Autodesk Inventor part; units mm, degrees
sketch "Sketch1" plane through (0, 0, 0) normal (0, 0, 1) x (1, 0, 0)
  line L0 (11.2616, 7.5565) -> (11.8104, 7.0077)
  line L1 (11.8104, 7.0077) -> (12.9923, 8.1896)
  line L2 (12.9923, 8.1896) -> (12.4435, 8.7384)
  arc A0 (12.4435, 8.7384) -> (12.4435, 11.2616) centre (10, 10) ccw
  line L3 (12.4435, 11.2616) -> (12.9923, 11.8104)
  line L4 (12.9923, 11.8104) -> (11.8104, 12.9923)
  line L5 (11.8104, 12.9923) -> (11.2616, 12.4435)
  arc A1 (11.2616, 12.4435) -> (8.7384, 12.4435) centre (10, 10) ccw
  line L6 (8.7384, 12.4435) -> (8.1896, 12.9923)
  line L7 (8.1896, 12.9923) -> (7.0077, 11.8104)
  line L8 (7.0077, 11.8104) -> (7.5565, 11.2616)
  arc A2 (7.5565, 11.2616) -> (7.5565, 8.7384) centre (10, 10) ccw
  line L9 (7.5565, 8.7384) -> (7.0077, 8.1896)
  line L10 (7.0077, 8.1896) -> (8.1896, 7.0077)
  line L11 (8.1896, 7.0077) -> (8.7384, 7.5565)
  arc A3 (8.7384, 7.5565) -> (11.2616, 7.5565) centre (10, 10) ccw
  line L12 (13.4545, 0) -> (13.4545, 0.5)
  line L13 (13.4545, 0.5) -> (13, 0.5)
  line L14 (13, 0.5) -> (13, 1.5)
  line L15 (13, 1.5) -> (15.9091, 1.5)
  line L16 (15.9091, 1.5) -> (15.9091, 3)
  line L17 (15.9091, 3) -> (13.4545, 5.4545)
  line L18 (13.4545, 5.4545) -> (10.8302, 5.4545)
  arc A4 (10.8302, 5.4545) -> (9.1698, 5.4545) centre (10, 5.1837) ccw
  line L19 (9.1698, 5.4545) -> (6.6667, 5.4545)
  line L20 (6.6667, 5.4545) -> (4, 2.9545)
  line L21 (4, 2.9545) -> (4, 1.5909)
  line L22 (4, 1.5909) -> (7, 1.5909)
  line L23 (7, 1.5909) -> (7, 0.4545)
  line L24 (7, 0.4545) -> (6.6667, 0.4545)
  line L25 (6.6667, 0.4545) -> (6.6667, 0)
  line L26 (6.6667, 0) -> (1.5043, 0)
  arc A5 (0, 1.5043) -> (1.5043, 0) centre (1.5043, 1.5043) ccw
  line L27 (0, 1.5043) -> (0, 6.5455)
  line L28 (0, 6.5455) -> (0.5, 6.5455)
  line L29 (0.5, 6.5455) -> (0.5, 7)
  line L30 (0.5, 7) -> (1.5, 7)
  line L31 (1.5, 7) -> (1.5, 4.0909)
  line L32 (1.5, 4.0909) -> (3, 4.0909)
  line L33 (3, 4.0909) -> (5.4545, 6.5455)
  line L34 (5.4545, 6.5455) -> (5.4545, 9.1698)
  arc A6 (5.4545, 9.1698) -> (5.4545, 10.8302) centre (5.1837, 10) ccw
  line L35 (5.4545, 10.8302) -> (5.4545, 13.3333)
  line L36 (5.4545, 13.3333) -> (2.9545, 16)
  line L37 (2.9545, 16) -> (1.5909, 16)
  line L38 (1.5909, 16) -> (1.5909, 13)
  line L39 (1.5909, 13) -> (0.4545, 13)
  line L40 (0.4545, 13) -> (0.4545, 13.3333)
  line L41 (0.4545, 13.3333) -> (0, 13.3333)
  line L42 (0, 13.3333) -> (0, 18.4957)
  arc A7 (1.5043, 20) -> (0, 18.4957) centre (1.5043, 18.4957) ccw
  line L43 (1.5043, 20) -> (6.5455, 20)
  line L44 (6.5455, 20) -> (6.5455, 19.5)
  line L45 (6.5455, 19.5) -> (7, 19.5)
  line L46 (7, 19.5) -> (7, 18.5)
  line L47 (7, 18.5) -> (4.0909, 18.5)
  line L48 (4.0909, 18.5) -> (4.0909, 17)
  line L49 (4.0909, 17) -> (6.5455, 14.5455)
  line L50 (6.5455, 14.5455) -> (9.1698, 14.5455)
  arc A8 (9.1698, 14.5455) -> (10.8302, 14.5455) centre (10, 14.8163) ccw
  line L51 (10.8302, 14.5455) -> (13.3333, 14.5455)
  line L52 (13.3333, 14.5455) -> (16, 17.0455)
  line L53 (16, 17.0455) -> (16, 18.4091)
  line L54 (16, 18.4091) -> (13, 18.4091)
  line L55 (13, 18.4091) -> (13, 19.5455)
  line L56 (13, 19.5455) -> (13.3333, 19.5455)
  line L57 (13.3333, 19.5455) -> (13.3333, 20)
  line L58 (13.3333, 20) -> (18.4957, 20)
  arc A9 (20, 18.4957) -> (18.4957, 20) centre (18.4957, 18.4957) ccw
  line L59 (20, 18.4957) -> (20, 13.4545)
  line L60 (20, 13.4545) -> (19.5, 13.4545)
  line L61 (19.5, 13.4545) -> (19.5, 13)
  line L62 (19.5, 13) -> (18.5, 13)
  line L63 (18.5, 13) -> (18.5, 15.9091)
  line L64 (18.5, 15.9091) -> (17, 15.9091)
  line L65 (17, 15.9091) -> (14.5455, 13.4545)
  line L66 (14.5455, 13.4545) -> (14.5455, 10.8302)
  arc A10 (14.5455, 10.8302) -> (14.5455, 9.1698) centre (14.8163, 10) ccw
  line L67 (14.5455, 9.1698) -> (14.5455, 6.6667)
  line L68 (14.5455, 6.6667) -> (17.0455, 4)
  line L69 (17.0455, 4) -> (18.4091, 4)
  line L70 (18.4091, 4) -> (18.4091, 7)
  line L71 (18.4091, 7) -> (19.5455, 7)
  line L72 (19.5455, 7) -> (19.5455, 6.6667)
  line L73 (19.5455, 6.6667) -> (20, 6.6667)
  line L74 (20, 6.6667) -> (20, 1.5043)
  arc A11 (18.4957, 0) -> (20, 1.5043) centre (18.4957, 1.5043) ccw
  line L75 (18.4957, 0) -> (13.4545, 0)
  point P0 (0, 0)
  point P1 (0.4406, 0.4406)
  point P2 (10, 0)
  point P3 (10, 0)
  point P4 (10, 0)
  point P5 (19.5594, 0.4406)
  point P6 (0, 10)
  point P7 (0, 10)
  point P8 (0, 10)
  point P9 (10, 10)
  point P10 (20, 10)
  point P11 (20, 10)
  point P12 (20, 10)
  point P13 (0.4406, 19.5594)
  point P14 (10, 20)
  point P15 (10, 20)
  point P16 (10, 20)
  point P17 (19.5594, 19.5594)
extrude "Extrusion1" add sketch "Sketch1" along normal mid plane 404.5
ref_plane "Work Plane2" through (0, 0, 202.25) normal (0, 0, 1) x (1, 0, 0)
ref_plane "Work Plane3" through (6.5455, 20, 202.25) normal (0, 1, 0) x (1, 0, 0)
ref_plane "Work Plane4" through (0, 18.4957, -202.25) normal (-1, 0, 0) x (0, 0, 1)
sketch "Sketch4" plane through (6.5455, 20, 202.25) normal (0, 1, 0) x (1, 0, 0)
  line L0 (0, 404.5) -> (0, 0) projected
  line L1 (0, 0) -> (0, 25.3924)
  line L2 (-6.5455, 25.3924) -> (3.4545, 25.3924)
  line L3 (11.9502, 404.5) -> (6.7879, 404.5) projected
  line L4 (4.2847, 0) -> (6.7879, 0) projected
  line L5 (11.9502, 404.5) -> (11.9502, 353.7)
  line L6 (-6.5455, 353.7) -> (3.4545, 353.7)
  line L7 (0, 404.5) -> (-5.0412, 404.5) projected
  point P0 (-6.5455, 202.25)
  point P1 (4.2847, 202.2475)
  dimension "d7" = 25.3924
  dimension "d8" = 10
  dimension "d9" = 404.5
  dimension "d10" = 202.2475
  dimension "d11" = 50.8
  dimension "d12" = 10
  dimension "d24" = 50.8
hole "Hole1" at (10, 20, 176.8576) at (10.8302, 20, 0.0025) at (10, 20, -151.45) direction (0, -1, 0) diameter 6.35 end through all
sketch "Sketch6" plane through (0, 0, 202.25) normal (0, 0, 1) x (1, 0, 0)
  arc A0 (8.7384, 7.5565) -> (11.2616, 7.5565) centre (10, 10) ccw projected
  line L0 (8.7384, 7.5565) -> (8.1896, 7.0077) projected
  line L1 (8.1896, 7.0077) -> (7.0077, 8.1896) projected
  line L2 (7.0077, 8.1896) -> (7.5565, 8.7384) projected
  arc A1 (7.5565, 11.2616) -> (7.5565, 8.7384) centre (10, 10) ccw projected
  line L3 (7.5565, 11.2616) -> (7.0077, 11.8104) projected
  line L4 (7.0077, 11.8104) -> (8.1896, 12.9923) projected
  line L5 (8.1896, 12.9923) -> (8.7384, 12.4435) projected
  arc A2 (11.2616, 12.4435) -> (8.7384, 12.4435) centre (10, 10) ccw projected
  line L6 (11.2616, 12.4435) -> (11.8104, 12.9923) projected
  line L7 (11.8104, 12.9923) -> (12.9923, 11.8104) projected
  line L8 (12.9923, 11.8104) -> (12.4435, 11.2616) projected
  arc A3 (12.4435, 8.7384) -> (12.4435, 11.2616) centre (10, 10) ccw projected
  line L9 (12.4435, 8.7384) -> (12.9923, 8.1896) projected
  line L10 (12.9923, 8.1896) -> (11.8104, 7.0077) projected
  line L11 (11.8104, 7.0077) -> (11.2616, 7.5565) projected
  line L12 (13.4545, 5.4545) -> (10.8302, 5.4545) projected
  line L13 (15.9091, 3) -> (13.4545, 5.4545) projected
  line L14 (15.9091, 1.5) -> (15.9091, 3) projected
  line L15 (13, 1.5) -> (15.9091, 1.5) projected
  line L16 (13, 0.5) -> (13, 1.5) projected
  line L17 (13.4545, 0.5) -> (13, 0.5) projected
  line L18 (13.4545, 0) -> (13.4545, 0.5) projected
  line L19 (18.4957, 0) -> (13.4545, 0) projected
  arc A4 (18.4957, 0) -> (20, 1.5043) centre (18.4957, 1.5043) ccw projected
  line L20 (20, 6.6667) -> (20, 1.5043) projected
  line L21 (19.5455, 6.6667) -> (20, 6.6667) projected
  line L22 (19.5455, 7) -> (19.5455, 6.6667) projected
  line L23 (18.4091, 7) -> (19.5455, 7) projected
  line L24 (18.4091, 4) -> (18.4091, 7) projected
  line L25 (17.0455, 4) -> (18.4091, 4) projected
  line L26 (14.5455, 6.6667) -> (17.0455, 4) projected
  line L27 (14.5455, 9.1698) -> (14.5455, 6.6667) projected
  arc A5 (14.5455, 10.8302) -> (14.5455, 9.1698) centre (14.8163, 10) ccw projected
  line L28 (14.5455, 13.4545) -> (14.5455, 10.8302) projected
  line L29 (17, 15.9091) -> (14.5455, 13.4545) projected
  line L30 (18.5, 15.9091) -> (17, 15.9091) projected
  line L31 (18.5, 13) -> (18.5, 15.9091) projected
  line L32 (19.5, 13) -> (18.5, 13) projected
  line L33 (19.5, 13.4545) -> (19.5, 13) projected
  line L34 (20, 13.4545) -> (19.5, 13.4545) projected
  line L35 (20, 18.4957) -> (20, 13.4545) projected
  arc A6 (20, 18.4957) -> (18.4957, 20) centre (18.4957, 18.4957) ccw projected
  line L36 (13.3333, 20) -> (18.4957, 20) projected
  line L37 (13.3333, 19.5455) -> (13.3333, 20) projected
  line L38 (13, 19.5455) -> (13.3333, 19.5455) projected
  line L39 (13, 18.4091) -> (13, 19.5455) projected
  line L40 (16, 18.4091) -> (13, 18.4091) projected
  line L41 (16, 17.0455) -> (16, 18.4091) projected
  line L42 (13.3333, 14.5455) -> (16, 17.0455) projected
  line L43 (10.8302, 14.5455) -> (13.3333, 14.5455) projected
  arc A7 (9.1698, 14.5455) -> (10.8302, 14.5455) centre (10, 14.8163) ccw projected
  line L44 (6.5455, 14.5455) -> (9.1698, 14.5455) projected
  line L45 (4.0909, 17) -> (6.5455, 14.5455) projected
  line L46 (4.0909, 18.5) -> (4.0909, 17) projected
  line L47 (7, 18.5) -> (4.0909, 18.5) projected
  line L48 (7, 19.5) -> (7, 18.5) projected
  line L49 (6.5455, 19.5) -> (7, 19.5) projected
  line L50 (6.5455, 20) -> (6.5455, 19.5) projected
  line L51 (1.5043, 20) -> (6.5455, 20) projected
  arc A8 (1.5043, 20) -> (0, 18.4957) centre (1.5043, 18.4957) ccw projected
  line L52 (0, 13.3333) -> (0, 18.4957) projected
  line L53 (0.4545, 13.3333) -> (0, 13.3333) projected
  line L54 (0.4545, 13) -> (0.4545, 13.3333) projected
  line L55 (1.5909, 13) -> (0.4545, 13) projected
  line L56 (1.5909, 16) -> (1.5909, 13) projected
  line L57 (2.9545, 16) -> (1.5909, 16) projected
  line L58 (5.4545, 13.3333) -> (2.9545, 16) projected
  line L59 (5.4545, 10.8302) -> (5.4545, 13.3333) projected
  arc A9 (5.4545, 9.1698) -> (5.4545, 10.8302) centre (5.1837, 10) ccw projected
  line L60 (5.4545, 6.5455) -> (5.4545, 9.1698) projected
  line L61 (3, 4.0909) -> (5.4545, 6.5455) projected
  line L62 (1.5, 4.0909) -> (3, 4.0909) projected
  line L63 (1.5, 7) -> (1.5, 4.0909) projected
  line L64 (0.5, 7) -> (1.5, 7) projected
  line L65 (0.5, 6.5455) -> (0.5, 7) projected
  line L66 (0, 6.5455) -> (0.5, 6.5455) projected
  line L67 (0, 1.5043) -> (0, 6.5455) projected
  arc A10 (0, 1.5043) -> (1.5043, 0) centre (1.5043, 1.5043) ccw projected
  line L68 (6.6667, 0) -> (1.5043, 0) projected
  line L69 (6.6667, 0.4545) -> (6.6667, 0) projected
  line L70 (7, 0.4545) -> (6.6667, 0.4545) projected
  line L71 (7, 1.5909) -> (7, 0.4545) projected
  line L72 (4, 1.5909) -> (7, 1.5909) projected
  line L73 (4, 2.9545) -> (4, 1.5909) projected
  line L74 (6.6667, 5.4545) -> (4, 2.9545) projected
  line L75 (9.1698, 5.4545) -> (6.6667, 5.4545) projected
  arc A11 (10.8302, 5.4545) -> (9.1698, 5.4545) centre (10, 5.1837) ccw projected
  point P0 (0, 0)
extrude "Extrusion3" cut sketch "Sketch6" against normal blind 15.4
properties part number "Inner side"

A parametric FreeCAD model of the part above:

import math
import FreeCAD as App
import Part
import Sketcher

doc = App.newDocument("Part")
body = doc.addObject("PartDesign::Body", "Body")

# Sketch on XY plane
sketch1 = doc.addObject("Sketcher::SketchObject", "Sketch")
body.addObject(sketch1)
sketch1.AttachmentSupport = (doc.XY_Plane, [""])
sketch1.MapMode = "FlatFace"
sketch1.addGeometry([
    Part.LineSegment(App.Vector(13.45, 0.5, 0), App.Vector(13.45, 0, 0)),  # 0
    Part.LineSegment(App.Vector(13.45, 0, 0), App.Vector(18.5, 0, 0)),  # 1
    Part.ArcOfCircle(Part.Circle(App.Vector(18.5, 1.5, 0), App.Vector(0, 0, 1), 1.5), math.radians(-90), math.radians(0)),  # 2
    Part.LineSegment(App.Vector(20, 1.5, 0), App.Vector(20, 6.67, 0)),  # 3
    Part.LineSegment(App.Vector(20, 6.67, 0), App.Vector(19.55, 6.67, 0)),  # 4
    Part.LineSegment(App.Vector(19.55, 6.67, 0), App.Vector(19.55, 7, 0)),  # 5
    Part.LineSegment(App.Vector(19.55, 7, 0), App.Vector(18.41, 7, 0)),  # 6
    Part.LineSegment(App.Vector(18.41, 7, 0), App.Vector(18.41, 4, 0)),  # 7
    Part.LineSegment(App.Vector(18.41, 4, 0), App.Vector(17.05, 4, 0)),  # 8
    Part.LineSegment(App.Vector(17.05, 4, 0), App.Vector(14.55, 6.67, 0)),  # 9
    Part.LineSegment(App.Vector(14.55, 6.67, 0), App.Vector(14.55, 9.17, 0)),  # 10
    Part.ArcOfCircle(Part.Circle(App.Vector(14.82, 10, 0), App.Vector(0, 0, 1), 0.87), math.radians(108), math.radians(252)),  # 11
    Part.LineSegment(App.Vector(14.55, 10.83, 0), App.Vector(14.55, 13.45, 0)),  # 12
    Part.LineSegment(App.Vector(14.55, 13.45, 0), App.Vector(17, 15.91, 0)),  # 13
    Part.LineSegment(App.Vector(17, 15.91, 0), App.Vector(18.5, 15.91, 0)),  # 14
    Part.LineSegment(App.Vector(18.5, 15.91, 0), App.Vector(18.5, 13, 0)),  # 15
    Part.LineSegment(App.Vector(18.5, 13, 0), App.Vector(19.5, 13, 0)),  # 16
    Part.LineSegment(App.Vector(19.5, 13, 0), App.Vector(19.5, 13.45, 0)),  # 17
    Part.LineSegment(App.Vector(19.5, 13.45, 0), App.Vector(20, 13.45, 0)),  # 18
    Part.LineSegment(App.Vector(20, 13.45, 0), App.Vector(20, 18.5, 0)),  # 19
    Part.ArcOfCircle(Part.Circle(App.Vector(18.5, 18.5, 0), App.Vector(0, 0, 1), 1.5), math.radians(0), math.radians(90)),  # 20
    Part.LineSegment(App.Vector(18.5, 20, 0), App.Vector(13.33, 20, 0)),  # 21
    Part.LineSegment(App.Vector(13.33, 20, 0), App.Vector(13.33, 19.55, 0)),  # 22
    Part.LineSegment(App.Vector(13.33, 19.55, 0), App.Vector(13, 19.55, 0)),  # 23
    Part.LineSegment(App.Vector(13, 19.55, 0), App.Vector(13, 18.41, 0)),  # 24
    Part.LineSegment(App.Vector(13, 18.41, 0), App.Vector(16, 18.41, 0)),  # 25
    Part.LineSegment(App.Vector(16, 18.41, 0), App.Vector(16, 17.05, 0)),  # 26
    Part.LineSegment(App.Vector(16, 17.05, 0), App.Vector(13.33, 14.55, 0)),  # 27
    Part.LineSegment(App.Vector(13.33, 14.55, 0), App.Vector(10.83, 14.55, 0)),  # 28
    Part.ArcOfCircle(Part.Circle(App.Vector(10, 14.82, 0), App.Vector(0, 0, 1), 0.87), math.radians(-162), math.radians(-18)),  # 29
    Part.LineSegment(App.Vector(9.17, 14.55, 0), App.Vector(6.55, 14.55, 0)),  # 30
    Part.LineSegment(App.Vector(6.55, 14.55, 0), App.Vector(4.09, 17, 0)),  # 31
    Part.LineSegment(App.Vector(4.09, 17, 0), App.Vector(4.09, 18.5, 0)),  # 32
    Part.LineSegment(App.Vector(4.09, 18.5, 0), App.Vector(7, 18.5, 0)),  # 33
    Part.LineSegment(App.Vector(7, 18.5, 0), App.Vector(7, 19.5, 0)),  # 34
    Part.LineSegment(App.Vector(7, 19.5, 0), App.Vector(6.55, 19.5, 0)),  # 35
    Part.LineSegment(App.Vector(6.55, 19.5, 0), App.Vector(6.55, 20, 0)),  # 36
    Part.LineSegment(App.Vector(6.55, 20, 0), App.Vector(1.5, 20, 0)),  # 37
    Part.ArcOfCircle(Part.Circle(App.Vector(1.5, 18.5, 0), App.Vector(0, 0, 1), 1.5), math.radians(90), math.radians(180)),  # 38
    Part.LineSegment(App.Vector(0, 18.5, 0), App.Vector(0, 13.33, 0)),  # 39
    Part.LineSegment(App.Vector(0, 13.33, 0), App.Vector(0.45, 13.33, 0)),  # 40
    Part.LineSegment(App.Vector(0.45, 13.33, 0), App.Vector(0.45, 13, 0)),  # 41
    Part.LineSegment(App.Vector(0.45, 13, 0), App.Vector(1.59, 13, 0)),  # 42
    Part.LineSegment(App.Vector(1.59, 13, 0), App.Vector(1.59, 16, 0)),  # 43
    Part.LineSegment(App.Vector(1.59, 16, 0), App.Vector(2.95, 16, 0)),  # 44
    Part.LineSegment(App.Vector(2.95, 16, 0), App.Vector(5.45, 13.33, 0)),  # 45
    Part.LineSegment(App.Vector(5.45, 13.33, 0), App.Vector(5.45, 10.83, 0)),  # 46
    Part.ArcOfCircle(Part.Circle(App.Vector(5.18, 10, 0), App.Vector(0, 0, 1), 0.87), math.radians(-72), math.radians(72)),  # 47
    Part.LineSegment(App.Vector(5.45, 9.17, 0), App.Vector(5.45, 6.55, 0)),  # 48
    Part.LineSegment(App.Vector(5.45, 6.55, 0), App.Vector(3, 4.09, 0)),  # 49
    Part.LineSegment(App.Vector(3, 4.09, 0), App.Vector(1.5, 4.09, 0)),  # 50
    Part.LineSegment(App.Vector(1.5, 4.09, 0), App.Vector(1.5, 7, 0)),  # 51
    Part.LineSegment(App.Vector(1.5, 7, 0), App.Vector(0.5, 7, 0)),  # 52
    Part.LineSegment(App.Vector(0.5, 7, 0), App.Vector(0.5, 6.55, 0)),  # 53
    Part.LineSegment(App.Vector(0.5, 6.55, 0), App.Vector(0, 6.55, 0)),  # 54
    Part.LineSegment(App.Vector(0, 6.55, 0), App.Vector(0, 1.5, 0)),  # 55
    Part.ArcOfCircle(Part.Circle(App.Vector(1.5, 1.5, 0), App.Vector(0, 0, 1), 1.5), math.radians(180), math.radians(270)),  # 56
    Part.LineSegment(App.Vector(1.5, 0, 0), App.Vector(6.67, 0, 0)),  # 57
    Part.LineSegment(App.Vector(6.67, 0, 0), App.Vector(6.67, 0.45, 0)),  # 58
    Part.LineSegment(App.Vector(6.67, 0.45, 0), App.Vector(7, 0.45, 0)),  # 59
    Part.LineSegment(App.Vector(7, 0.45, 0), App.Vector(7, 1.59, 0)),  # 60
    Part.LineSegment(App.Vector(7, 1.59, 0), App.Vector(4, 1.59, 0)),  # 61
    Part.LineSegment(App.Vector(4, 1.59, 0), App.Vector(4, 2.95, 0)),  # 62
    Part.LineSegment(App.Vector(4, 2.95, 0), App.Vector(6.67, 5.45, 0)),  # 63
    Part.LineSegment(App.Vector(6.67, 5.45, 0), App.Vector(9.17, 5.45, 0)),  # 64
    Part.ArcOfCircle(Part.Circle(App.Vector(10, 5.18, 0), App.Vector(0, 0, 1), 0.87), math.radians(18), math.radians(162)),  # 65
    Part.LineSegment(App.Vector(10.83, 5.45, 0), App.Vector(13.45, 5.45, 0)),  # 66
    Part.LineSegment(App.Vector(13.45, 5.45, 0), App.Vector(15.91, 3, 0)),  # 67
    Part.LineSegment(App.Vector(15.91, 3, 0), App.Vector(15.91, 1.5, 0)),  # 68
    Part.LineSegment(App.Vector(15.91, 1.5, 0), App.Vector(13, 1.5, 0)),  # 69
    Part.LineSegment(App.Vector(13, 1.5, 0), App.Vector(13, 0.5, 0)),  # 70
    Part.LineSegment(App.Vector(13, 0.5, 0), App.Vector(13.45, 0.5, 0)),  # 71
    Part.LineSegment(App.Vector(11.81, 7.01, 0), App.Vector(11.26, 7.56, 0)),  # 72
    Part.ArcOfCircle(Part.Circle(App.Vector(10, 10, 0), App.Vector(0, 0, 1), 2.75), math.radians(-117), math.radians(-63)),  # 73
    Part.LineSegment(App.Vector(8.74, 7.56, 0), App.Vector(8.19, 7.01, 0)),  # 74
    Part.LineSegment(App.Vector(8.19, 7.01, 0), App.Vector(7.01, 8.19, 0)),  # 75
    Part.LineSegment(App.Vector(7.01, 8.19, 0), App.Vector(7.56, 8.74, 0)),  # 76
    Part.ArcOfCircle(Part.Circle(App.Vector(10, 10, 0), App.Vector(0, 0, 1), 2.75), math.radians(153), math.radians(207)),  # 77
    Part.LineSegment(App.Vector(7.56, 11.26, 0), App.Vector(7.01, 11.81, 0)),  # 78
    Part.LineSegment(App.Vector(7.01, 11.81, 0), App.Vector(8.19, 12.99, 0)),  # 79
    Part.LineSegment(App.Vector(8.19, 12.99, 0), App.Vector(8.74, 12.44, 0)),  # 80
    Part.ArcOfCircle(Part.Circle(App.Vector(10, 10, 0), App.Vector(0, 0, 1), 2.75), math.radians(63), math.radians(117)),  # 81
    Part.LineSegment(App.Vector(11.26, 12.44, 0), App.Vector(11.81, 12.99, 0)),  # 82
    Part.LineSegment(App.Vector(11.81, 12.99, 0), App.Vector(12.99, 11.81, 0)),  # 83
    Part.LineSegment(App.Vector(12.99, 11.81, 0), App.Vector(12.44, 11.26, 0)),  # 84
    Part.ArcOfCircle(Part.Circle(App.Vector(10, 10, 0), App.Vector(0, 0, 1), 2.75), math.radians(-27), math.radians(27)),  # 85
    Part.LineSegment(App.Vector(12.44, 8.74, 0), App.Vector(12.99, 8.19, 0)),  # 86
    Part.LineSegment(App.Vector(12.99, 8.19, 0), App.Vector(11.81, 7.01, 0)),  # 87
], False)
sketch1.addConstraint([
    Sketcher.Constraint("Coincident", 0, 2, 1, 1),
    Sketcher.Constraint("Tangent", 1, 2, 2, 1),
    Sketcher.Constraint("Tangent", 2, 2, 3, 1),
    Sketcher.Constraint("Coincident", 3, 2, 4, 1),
    Sketcher.Constraint("Coincident", 4, 2, 5, 1),
    Sketcher.Constraint("Coincident", 5, 2, 6, 1),
    Sketcher.Constraint("Coincident", 6, 2, 7, 1),
    Sketcher.Constraint("Coincident", 7, 2, 8, 1),
    Sketcher.Constraint("Coincident", 8, 2, 9, 1),
    Sketcher.Constraint("Coincident", 9, 2, 10, 1),
    Sketcher.Constraint("Coincident", 10, 2, 11, 2),
    Sketcher.Constraint("Coincident", 11, 1, 12, 1),
    Sketcher.Constraint("Coincident", 12, 2, 13, 1),
    Sketcher.Constraint("Coincident", 13, 2, 14, 1),
    Sketcher.Constraint("Coincident", 14, 2, 15, 1),
    Sketcher.Constraint("Coincident", 15, 2, 16, 1),
    Sketcher.Constraint("Coincident", 16, 2, 17, 1),
    Sketcher.Constraint("Coincident", 17, 2, 18, 1),
    Sketcher.Constraint("Coincident", 18, 2, 19, 1),
    Sketcher.Constraint("Tangent", 19, 2, 20, 1),
    Sketcher.Constraint("Tangent", 20, 2, 21, 1),
    Sketcher.Constraint("Coincident", 21, 2, 22, 1),
    Sketcher.Constraint("Coincident", 22, 2, 23, 1),
    Sketcher.Constraint("Coincident", 23, 2, 24, 1),
    Sketcher.Constraint("Coincident", 24, 2, 25, 1),
    Sketcher.Constraint("Coincident", 25, 2, 26, 1),
    Sketcher.Constraint("Coincident", 26, 2, 27, 1),
    Sketcher.Constraint("Coincident", 27, 2, 28, 1),
    Sketcher.Constraint("Coincident", 28, 2, 29, 2),
    Sketcher.Constraint("Coincident", 29, 1, 30, 1),
    Sketcher.Constraint("Coincident", 30, 2, 31, 1),
    Sketcher.Constraint("Coincident", 31, 2, 32, 1),
    Sketcher.Constraint("Coincident", 32, 2, 33, 1),
    Sketcher.Constraint("Coincident", 33, 2, 34, 1),
    Sketcher.Constraint("Coincident", 34, 2, 35, 1),
    Sketcher.Constraint("Coincident", 35, 2, 36, 1),
    Sketcher.Constraint("Coincident", 36, 2, 37, 1),
    Sketcher.Constraint("Tangent", 37, 2, 38, 1),
    Sketcher.Constraint("Tangent", 38, 2, 39, 1),
    Sketcher.Constraint("Coincident", 39, 2, 40, 1),
    Sketcher.Constraint("Coincident", 40, 2, 41, 1),
    Sketcher.Constraint("Coincident", 41, 2, 42, 1),
    Sketcher.Constraint("Coincident", 42, 2, 43, 1),
    Sketcher.Constraint("Coincident", 43, 2, 44, 1),
    Sketcher.Constraint("Coincident", 44, 2, 45, 1),
    Sketcher.Constraint("Coincident", 45, 2, 46, 1),
    Sketcher.Constraint("Coincident", 46, 2, 47, 2),
    Sketcher.Constraint("Coincident", 47, 1, 48, 1),
    Sketcher.Constraint("Coincident", 48, 2, 49, 1),
    Sketcher.Constraint("Coincident", 49, 2, 50, 1),
    Sketcher.Constraint("Coincident", 50, 2, 51, 1),
    Sketcher.Constraint("Coincident", 51, 2, 52, 1),
    Sketcher.Constraint("Coincident", 52, 2, 53, 1),
    Sketcher.Constraint("Coincident", 53, 2, 54, 1),
    Sketcher.Constraint("Coincident", 54, 2, 55, 1),
    Sketcher.Constraint("Tangent", 55, 2, 56, 1),
    Sketcher.Constraint("Tangent", 56, 2, 57, 1),
    Sketcher.Constraint("Coincident", 57, 2, 58, 1),
    Sketcher.Constraint("Coincident", 58, 2, 59, 1),
    Sketcher.Constraint("Coincident", 59, 2, 60, 1),
    Sketcher.Constraint("Coincident", 60, 2, 61, 1),
    Sketcher.Constraint("Coincident", 61, 2, 62, 1),
    Sketcher.Constraint("Coincident", 62, 2, 63, 1),
    Sketcher.Constraint("Coincident", 63, 2, 64, 1),
    Sketcher.Constraint("Coincident", 64, 2, 65, 2),
    Sketcher.Constraint("Coincident", 65, 1, 66, 1),
    Sketcher.Constraint("Coincident", 66, 2, 67, 1),
    Sketcher.Constraint("Coincident", 67, 2, 68, 1),
    Sketcher.Constraint("Coincident", 68, 2, 69, 1),
    Sketcher.Constraint("Coincident", 69, 2, 70, 1),
    Sketcher.Constraint("Coincident", 70, 2, 71, 1),
    Sketcher.Constraint("Coincident", 71, 2, 0, 1),
    Sketcher.Constraint("Coincident", 72, 2, 73, 2),
    Sketcher.Constraint("Coincident", 73, 1, 74, 1),
    Sketcher.Constraint("Coincident", 74, 2, 75, 1),
    Sketcher.Constraint("Coincident", 75, 2, 76, 1),
    Sketcher.Constraint("Coincident", 76, 2, 77, 2),
    Sketcher.Constraint("Coincident", 77, 1, 78, 1),
    Sketcher.Constraint("Coincident", 78, 2, 79, 1),
    Sketcher.Constraint("Coincident", 79, 2, 80, 1),
    Sketcher.Constraint("Coincident", 80, 2, 81, 2),
    Sketcher.Constraint("Coincident", 81, 1, 82, 1),
    Sketcher.Constraint("Coincident", 82, 2, 83, 1),
    Sketcher.Constraint("Coincident", 83, 2, 84, 1),
    Sketcher.Constraint("Coincident", 84, 2, 85, 2),
    Sketcher.Constraint("Coincident", 85, 1, 86, 1),
    Sketcher.Constraint("Coincident", 86, 2, 87, 1),
    Sketcher.Constraint("Coincident", 87, 2, 72, 1),
    Sketcher.Constraint("Vertical", 0),
    Sketcher.Constraint("Horizontal", 1),
    Sketcher.Constraint("Vertical", 3),
    Sketcher.Constraint("Horizontal", 4),
    Sketcher.Constraint("Vertical", 5),
    Sketcher.Constraint("Horizontal", 6),
    Sketcher.Constraint("Vertical", 7),
    Sketcher.Constraint("Horizontal", 8),
    Sketcher.Constraint("Vertical", 10),
    Sketcher.Constraint("Vertical", 12),
    Sketcher.Constraint("Horizontal", 14),
    Sketcher.Constraint("Vertical", 15),
    Sketcher.Constraint("Horizontal", 16),
    Sketcher.Constraint("Vertical", 17),
    Sketcher.Constraint("Horizontal", 18),
    Sketcher.Constraint("Vertical", 19),
    Sketcher.Constraint("Horizontal", 21),
    Sketcher.Constraint("Vertical", 22),
    Sketcher.Constraint("Horizontal", 23),
    Sketcher.Constraint("Vertical", 24),
    Sketcher.Constraint("Horizontal", 25),
    Sketcher.Constraint("Vertical", 26),
    Sketcher.Constraint("Horizontal", 28),
    Sketcher.Constraint("Horizontal", 30),
    Sketcher.Constraint("Vertical", 32),
    Sketcher.Constraint("Horizontal", 33),
    Sketcher.Constraint("Vertical", 34),
    Sketcher.Constraint("Horizontal", 35),
    Sketcher.Constraint("Vertical", 36),
    Sketcher.Constraint("Horizontal", 37),
    Sketcher.Constraint("Vertical", 39),
    Sketcher.Constraint("Horizontal", 40),
    Sketcher.Constraint("Vertical", 41),
    Sketcher.Constraint("Horizontal", 42),
    Sketcher.Constraint("Vertical", 43),
    Sketcher.Constraint("Horizontal", 44),
    Sketcher.Constraint("Vertical", 46),
    Sketcher.Constraint("Vertical", 48),
    Sketcher.Constraint("Horizontal", 50),
    Sketcher.Constraint("Vertical", 51),
    Sketcher.Constraint("Horizontal", 52),
    Sketcher.Constraint("Vertical", 53),
    Sketcher.Constraint("Horizontal", 54),
    Sketcher.Constraint("Vertical", 55),
    Sketcher.Constraint("Horizontal", 57),
    Sketcher.Constraint("Vertical", 58),
    Sketcher.Constraint("Horizontal", 59),
    Sketcher.Constraint("Vertical", 60),
    Sketcher.Constraint("Horizontal", 61),
    Sketcher.Constraint("Vertical", 62),
    Sketcher.Constraint("Horizontal", 64),
    Sketcher.Constraint("Horizontal", 66),
    Sketcher.Constraint("Vertical", 68),
    Sketcher.Constraint("Horizontal", 69),
    Sketcher.Constraint("Vertical", 70),
    Sketcher.Constraint("Horizontal", 71),
    Sketcher.Constraint("Coincident", 77, 3, 73, 3),
    Sketcher.Constraint("Coincident", 81, 3, 73, 3),
    Sketcher.Constraint("Coincident", 85, 3, 73, 3),
    Sketcher.Constraint("Equal", 2, 20),
    Sketcher.Constraint("Equal", 11, 29),
    Sketcher.Constraint("Equal", 20, 38),
    Sketcher.Constraint("Equal", 29, 47),
    Sketcher.Constraint("Equal", 38, 56),
    Sketcher.Constraint("Equal", 47, 65),
    Sketcher.Constraint("Equal", 73, 77),
    Sketcher.Constraint("Equal", 77, 81),
    Sketcher.Constraint("Equal", 81, 85),
    Sketcher.Constraint("PointOnObject", 0, 2, -1),
    Sketcher.Constraint("PointOnObject", 38, 2, -2),
    Sketcher.Constraint("PointOnObject", 54, 2, -2),
    Sketcher.Constraint("PointOnObject", 56, 2, -1),
    Sketcher.Constraint("Perpendicular", 9, 27),
    Sketcher.Constraint("Perpendicular", 13, 31),
    Sketcher.Constraint("Perpendicular", 27, 45),
    Sketcher.Constraint("Perpendicular", 31, 49),
    Sketcher.Constraint("Perpendicular", 45, 63),
    Sketcher.Constraint("Perpendicular", 49, 67),
    Sketcher.Constraint("Parallel", 67, 72),
    Sketcher.Constraint("Perpendicular", 72, 74),
    Sketcher.Constraint("Perpendicular", 74, 75),
    Sketcher.Constraint("Perpendicular", 75, 76),
    Sketcher.Constraint("Perpendicular", 76, 78),
    Sketcher.Constraint("Perpendicular", 78, 79),
    Sketcher.Constraint("Perpendicular", 79, 80),
    Sketcher.Constraint("Perpendicular", 80, 82),
    Sketcher.Constraint("Perpendicular", 82, 83),
    Sketcher.Constraint("Perpendicular", 83, 84),
    Sketcher.Constraint("Perpendicular", 84, 86),
    Sketcher.Constraint("Perpendicular", 86, 87),
    Sketcher.Constraint("Horizontal", 20, 3, 38, 3),
    Sketcher.Constraint("Horizontal", 11, 3, 47, 3),
    Sketcher.Constraint("Horizontal", 47, 3, 73, 3),
    Sketcher.Constraint("Horizontal", 4, 2, 9, 2),
    Sketcher.Constraint("Horizontal", 12, 2, 17, 2),
    Sketcher.Constraint("Horizontal", 28, 2, 29, 1),
    Sketcher.Constraint("Horizontal", 16, 2, 41, 2),
    Sketcher.Constraint("Horizontal", 40, 2, 45, 2),
    Sketcher.Constraint("Horizontal", 11, 1, 46, 2),
    Sketcher.Constraint("Horizontal", 10, 2, 47, 1),
    Sketcher.Constraint("Horizontal", 6, 2, 51, 2),
    Sketcher.Constraint("Horizontal", 48, 2, 53, 2),
    Sketcher.Constraint("Horizontal", 64, 2, 65, 1),
    Sketcher.Constraint("Horizontal", 72, 2, 73, 1),
    Sketcher.Constraint("Horizontal", 80, 2, 81, 1),
    Sketcher.Constraint("Horizontal", 79, 2, 82, 2),
    Sketcher.Constraint("Horizontal", 78, 2, 83, 2),
    Sketcher.Constraint("Horizontal", 77, 1, 84, 2),
    Sketcher.Constraint("Horizontal", 76, 2, 85, 1),
    Sketcher.Constraint("Horizontal", 75, 2, 86, 2),
    Sketcher.Constraint("Vertical", 2, 3, 20, 3),
    Sketcher.Constraint("Vertical", 29, 3, 65, 3),
    Sketcher.Constraint("Vertical", 65, 3, 73, 3),
    Sketcher.Constraint("Vertical", 10, 2, 11, 1),
    Sketcher.Constraint("Vertical", 22, 2, 27, 2),
    Sketcher.Constraint("Vertical", 30, 2, 35, 2),
    Sketcher.Constraint("Vertical", 34, 2, 59, 2),
    Sketcher.Constraint("Vertical", 58, 2, 63, 2),
    Sketcher.Constraint("Vertical", 29, 1, 64, 2),
    Sketcher.Constraint("Vertical", 0, 2, 66, 2),
    Sketcher.Constraint("Vertical", 24, 2, 69, 2),
    Sketcher.Constraint("Vertical", 76, 2, 77, 1),
    Sketcher.Constraint("Vertical", 75, 2, 78, 2),
    Sketcher.Constraint("Vertical", 74, 2, 79, 2),
    Sketcher.Constraint("Equal", 4, 35),
    Sketcher.Constraint("Equal", 1, 37),
    Sketcher.Constraint("Equal", 35, 40),
    Sketcher.Constraint("Equal", 6, 42),
    Sketcher.Constraint("Equal", 8, 44),
    Sketcher.Constraint("Equal", 14, 50),
    Sketcher.Constraint("Equal", 16, 52),
    Sketcher.Constraint("Equal", 18, 54),
    Sketcher.Constraint("Equal", 21, 57),
    Sketcher.Constraint("Equal", 23, 59),
    Sketcher.Constraint("Equal", 25, 61),
    Sketcher.Constraint("Equal", 28, 64),
    Sketcher.Constraint("Equal", 33, 69),
    Sketcher.Constraint("Equal", 54, 0),
    Sketcher.Constraint("Equal", 57, 3),
    Sketcher.Constraint("Equal", 59, 5),
    Sketcher.Constraint("Equal", 61, 7),
    Sketcher.Constraint("Equal", 64, 10),
    Sketcher.Constraint("Equal", 66, 12),
    Sketcher.Constraint("Equal", 69, 15),
    Sketcher.Constraint("Equal", 71, 17),
    Sketcher.Constraint("Equal", 37, 19),
    Sketcher.Constraint("Equal", 17, 22),
    Sketcher.Constraint("Equal", 42, 24),
    Sketcher.Constraint("Equal", 44, 26),
    Sketcher.Constraint("Equal", 50, 32),
    Sketcher.Constraint("Equal", 52, 34),
    Sketcher.Constraint("Equal", 3, 39),
    Sketcher.Constraint("Equal", 7, 43),
    Sketcher.Constraint("Equal", 12, 48),
    Sketcher.Constraint("Equal", 53, 58),
    Sketcher.Constraint("Equal", 24, 60),
    Sketcher.Constraint("Equal", 26, 62),
    Sketcher.Constraint("Equal", 32, 68),
    Sketcher.Constraint("Equal", 74, 76),
    Sketcher.Constraint("DistanceX", 16, 1, 16, 2, 1.0),
    Sketcher.Constraint("DistanceX", 25, 1, 25, 2, 3.0),
    Sketcher.Constraint("Radius", 73, 2.75),
    Sketcher.Constraint("DistanceX", 14, 1, 14, 2, 1.5),
    Sketcher.Constraint("DistanceX", 18, 1, 18, 2, 0.5),
    Sketcher.Constraint("DistanceY", -1, 1, 11, 3, 10.0),
    Sketcher.Constraint("DistanceX", -1, 1, 29, 3, 10.0),
    Sketcher.Constraint("DistanceY", -1, 1, 5, 2, 7.0),
    Sketcher.Constraint("Radius", 2, 1.5043),
    Sketcher.Constraint("Radius", 11, 0.8732),
    Sketcher.Constraint("DistanceX", 28, 2, 28, 1, 2.503),
    Sketcher.Constraint("DistanceX", 33, 1, 33, 2, 2.909),
    Sketcher.Constraint("DistanceX", 1, 1, 1, 2, 5.0412),
    Sketcher.Constraint("DistanceX", 6, 2, 6, 1, 1.1364),
    Sketcher.Constraint("DistanceX", 8, 2, 8, 1, 1.3636),
    Sketcher.Constraint("DistanceX", 21, 2, 21, 1, 5.1624),
    Sketcher.Constraint("Distance", 72, 0.7761),
    Sketcher.Constraint("Distance", 75, 1.6715),
])
pad1 = doc.addObject("PartDesign::Pad", "Pad")
body.addObject(pad1)
pad1.Profile = sketch1
pad1.Length = 404.5
pad1.Midplane = True

# Sketch on XZ plane
sketch2 = doc.addObject("Sketcher::SketchObject", "Sketch001")
body.addObject(sketch2)
sketch2.AttachmentSupport = (doc.XZ_Plane, [""])
sketch2.MapMode = "FlatFace"
sketch2.AttachmentOffset = App.Placement(App.Vector(0, 0, -20), App.Rotation())
sketch2.addGeometry([
    Part.Circle(App.Vector(10, 176.9, 0), App.Vector(0, 0, 1), 3.2),
    Part.Circle(App.Vector(10.8, 0, 0), App.Vector(0, 0, 1), 3.2),
    Part.Circle(App.Vector(10, -151.4, 0), App.Vector(0, 0, 1), 3.2),
], False)
sketch2.addConstraint([
    Sketcher.Constraint("Equal", 0, 1),
    Sketcher.Constraint("Equal", 1, 2),
    Sketcher.Constraint("Vertical", 0, 3, 2, 3),
    Sketcher.Constraint("Diameter", 0, 6.35),
    Sketcher.Constraint("DistanceX", -1, 1, 0, 3, 10.0),
    Sketcher.Constraint("DistanceY", 2, 3, -1, 1, 151.45),
    Sketcher.Constraint("DistanceY", 1, 3, 0, 3, 176.855),
    Sketcher.Constraint("DistanceY", -1, 1, 0, 3, 176.8576),
    Sketcher.Constraint("DistanceX", -1, 1, 1, 3, 10.8302),
])
doc.recompute()
hole = doc.addObject("PartDesign::Hole", "Hole")
body.addObject(hole)
hole.Profile = sketch2
hole.ThreadType = "None"
hole.Diameter = 6.35
hole.DepthType = "ThroughAll"
hole.Reversed = True

# Sketch on XY plane
sketch3 = doc.addObject("Sketcher::SketchObject", "Sketch002")
body.addObject(sketch3)
sketch3.AttachmentSupport = (doc.XY_Plane, [""])
sketch3.MapMode = "FlatFace"
sketch3.AttachmentOffset = App.Placement(App.Vector(0, 0, 202.25), App.Rotation())
sketch3.addGeometry([
    Part.LineSegment(App.Vector(10.83, 5.45, 0), App.Vector(13.45, 5.45, 0)),  # 0
    Part.LineSegment(App.Vector(13.45, 5.45, 0), App.Vector(15.91, 3, 0)),  # 1
    Part.LineSegment(App.Vector(15.91, 3, 0), App.Vector(15.91, 1.5, 0)),  # 2
    Part.LineSegment(App.Vector(15.91, 1.5, 0), App.Vector(13, 1.5, 0)),  # 3
    Part.LineSegment(App.Vector(13, 1.5, 0), App.Vector(13, 0.5, 0)),  # 4
    Part.LineSegment(App.Vector(13, 0.5, 0), App.Vector(13.45, 0.5, 0)),  # 5
    Part.LineSegment(App.Vector(13.45, 0.5, 0), App.Vector(13.45, 0, 0)),  # 6
    Part.LineSegment(App.Vector(13.45, 0, 0), App.Vector(18.5, 0, 0)),  # 7
    Part.ArcOfCircle(Part.Circle(App.Vector(18.5, 1.5, 0), App.Vector(0, 0, 1), 1.5), math.radians(-90), math.radians(0)),  # 8
    Part.LineSegment(App.Vector(20, 1.5, 0), App.Vector(20, 6.67, 0)),  # 9
    Part.LineSegment(App.Vector(20, 6.67, 0), App.Vector(19.55, 6.67, 0)),  # 10
    Part.LineSegment(App.Vector(19.55, 6.67, 0), App.Vector(19.55, 7, 0)),  # 11
    Part.LineSegment(App.Vector(19.55, 7, 0), App.Vector(18.41, 7, 0)),  # 12
    Part.LineSegment(App.Vector(18.41, 7, 0), App.Vector(18.41, 4, 0)),  # 13
    Part.LineSegment(App.Vector(18.41, 4, 0), App.Vector(17.05, 4, 0)),  # 14
    Part.LineSegment(App.Vector(17.05, 4, 0), App.Vector(14.55, 6.67, 0)),  # 15
    Part.LineSegment(App.Vector(14.55, 6.67, 0), App.Vector(14.55, 9.17, 0)),  # 16
    Part.ArcOfCircle(Part.Circle(App.Vector(14.82, 10, 0), App.Vector(0, 0, 1), 0.87), math.radians(108), math.radians(252)),  # 17
    Part.LineSegment(App.Vector(14.55, 10.83, 0), App.Vector(14.55, 13.45, 0)),  # 18
    Part.LineSegment(App.Vector(14.55, 13.45, 0), App.Vector(17, 15.91, 0)),  # 19
    Part.LineSegment(App.Vector(17, 15.91, 0), App.Vector(18.5, 15.91, 0)),  # 20
    Part.LineSegment(App.Vector(18.5, 15.91, 0), App.Vector(18.5, 13, 0)),  # 21
    Part.LineSegment(App.Vector(18.5, 13, 0), App.Vector(19.5, 13, 0)),  # 22
    Part.LineSegment(App.Vector(19.5, 13, 0), App.Vector(19.5, 13.45, 0)),  # 23
    Part.LineSegment(App.Vector(19.5, 13.45, 0), App.Vector(20, 13.45, 0)),  # 24
    Part.LineSegment(App.Vector(20, 13.45, 0), App.Vector(20, 18.5, 0)),  # 25
    Part.ArcOfCircle(Part.Circle(App.Vector(18.5, 18.5, 0), App.Vector(0, 0, 1), 1.5), math.radians(0), math.radians(90)),  # 26
    Part.LineSegment(App.Vector(18.5, 20, 0), App.Vector(13.33, 20, 0)),  # 27
    Part.LineSegment(App.Vector(13.33, 20, 0), App.Vector(13.33, 19.55, 0)),  # 28
    Part.LineSegment(App.Vector(13.33, 19.55, 0), App.Vector(13, 19.55, 0)),  # 29
    Part.LineSegment(App.Vector(13, 19.55, 0), App.Vector(13, 18.41, 0)),  # 30
    Part.LineSegment(App.Vector(13, 18.41, 0), App.Vector(16, 18.41, 0)),  # 31
    Part.LineSegment(App.Vector(16, 18.41, 0), App.Vector(16, 17.05, 0)),  # 32
    Part.LineSegment(App.Vector(16, 17.05, 0), App.Vector(13.33, 14.55, 0)),  # 33
    Part.LineSegment(App.Vector(13.33, 14.55, 0), App.Vector(10.83, 14.55, 0)),  # 34
    Part.ArcOfCircle(Part.Circle(App.Vector(10, 14.82, 0), App.Vector(0, 0, 1), 0.87), math.radians(-162), math.radians(-18)),  # 35
    Part.LineSegment(App.Vector(9.17, 14.55, 0), App.Vector(6.55, 14.55, 0)),  # 36
    Part.LineSegment(App.Vector(6.55, 14.55, 0), App.Vector(4.09, 17, 0)),  # 37
    Part.LineSegment(App.Vector(4.09, 17, 0), App.Vector(4.09, 18.5, 0)),  # 38
    Part.LineSegment(App.Vector(4.09, 18.5, 0), App.Vector(7, 18.5, 0)),  # 39
    Part.LineSegment(App.Vector(7, 18.5, 0), App.Vector(7, 19.5, 0)),  # 40
    Part.LineSegment(App.Vector(7, 19.5, 0), App.Vector(6.55, 19.5, 0)),  # 41
    Part.LineSegment(App.Vector(6.55, 19.5, 0), App.Vector(6.55, 20, 0)),  # 42
    Part.LineSegment(App.Vector(6.55, 20, 0), App.Vector(1.5, 20, 0)),  # 43
    Part.ArcOfCircle(Part.Circle(App.Vector(1.5, 18.5, 0), App.Vector(0, 0, 1), 1.5), math.radians(90), math.radians(180)),  # 44
    Part.LineSegment(App.Vector(0, 18.5, 0), App.Vector(0, 13.33, 0)),  # 45
    Part.LineSegment(App.Vector(0, 13.33, 0), App.Vector(0.45, 13.33, 0)),  # 46
    Part.LineSegment(App.Vector(0.45, 13.33, 0), App.Vector(0.45, 13, 0)),  # 47
    Part.LineSegment(App.Vector(0.45, 13, 0), App.Vector(1.59, 13, 0)),  # 48
    Part.LineSegment(App.Vector(1.59, 13, 0), App.Vector(1.59, 16, 0)),  # 49
    Part.LineSegment(App.Vector(1.59, 16, 0), App.Vector(2.95, 16, 0)),  # 50
    Part.LineSegment(App.Vector(2.95, 16, 0), App.Vector(5.45, 13.33, 0)),  # 51
    Part.LineSegment(App.Vector(5.45, 13.33, 0), App.Vector(5.45, 10.83, 0)),  # 52
    Part.ArcOfCircle(Part.Circle(App.Vector(5.18, 10, 0), App.Vector(0, 0, 1), 0.87), math.radians(-72), math.radians(72)),  # 53
    Part.LineSegment(App.Vector(5.45, 9.17, 0), App.Vector(5.45, 6.55, 0)),  # 54
    Part.LineSegment(App.Vector(5.45, 6.55, 0), App.Vector(3, 4.09, 0)),  # 55
    Part.LineSegment(App.Vector(3, 4.09, 0), App.Vector(1.5, 4.09, 0)),  # 56
    Part.LineSegment(App.Vector(1.5, 4.09, 0), App.Vector(1.5, 7, 0)),  # 57
    Part.LineSegment(App.Vector(1.5, 7, 0), App.Vector(0.5, 7, 0)),  # 58
    Part.LineSegment(App.Vector(0.5, 7, 0), App.Vector(0.5, 6.55, 0)),  # 59
    Part.LineSegment(App.Vector(0.5, 6.55, 0), App.Vector(0, 6.55, 0)),  # 60
    Part.LineSegment(App.Vector(0, 6.55, 0), App.Vector(0, 1.5, 0)),  # 61
    Part.ArcOfCircle(Part.Circle(App.Vector(1.5, 1.5, 0), App.Vector(0, 0, 1), 1.5), math.radians(180), math.radians(270)),  # 62
    Part.LineSegment(App.Vector(1.5, 0, 0), App.Vector(6.67, 0, 0)),  # 63
    Part.LineSegment(App.Vector(6.67, 0, 0), App.Vector(6.67, 0.45, 0)),  # 64
    Part.LineSegment(App.Vector(6.67, 0.45, 0), App.Vector(7, 0.45, 0)),  # 65
    Part.LineSegment(App.Vector(7, 0.45, 0), App.Vector(7, 1.59, 0)),  # 66
    Part.LineSegment(App.Vector(7, 1.59, 0), App.Vector(4, 1.59, 0)),  # 67
    Part.LineSegment(App.Vector(4, 1.59, 0), App.Vector(4, 2.95, 0)),  # 68
    Part.LineSegment(App.Vector(4, 2.95, 0), App.Vector(6.67, 5.45, 0)),  # 69
    Part.LineSegment(App.Vector(6.67, 5.45, 0), App.Vector(9.17, 5.45, 0)),  # 70
    Part.ArcOfCircle(Part.Circle(App.Vector(10, 5.18, 0), App.Vector(0, 0, 1), 0.87), math.radians(18), math.radians(162)),  # 71
    Part.ArcOfCircle(Part.Circle(App.Vector(10, 10, 0), App.Vector(0, 0, 1), 2.75), math.radians(-117), math.radians(-63)),  # 72
    Part.LineSegment(App.Vector(8.74, 7.56, 0), App.Vector(8.19, 7.01, 0)),  # 73
    Part.LineSegment(App.Vector(8.19, 7.01, 0), App.Vector(7.01, 8.19, 0)),  # 74
    Part.LineSegment(App.Vector(7.01, 8.19, 0), App.Vector(7.56, 8.74, 0)),  # 75
    Part.ArcOfCircle(Part.Circle(App.Vector(10, 10, 0), App.Vector(0, 0, 1), 2.75), math.radians(153), math.radians(207)),  # 76
    Part.LineSegment(App.Vector(7.56, 11.26, 0), App.Vector(7.01, 11.81, 0)),  # 77
    Part.LineSegment(App.Vector(7.01, 11.81, 0), App.Vector(8.19, 12.99, 0)),  # 78
    Part.LineSegment(App.Vector(8.19, 12.99, 0), App.Vector(8.74, 12.44, 0)),  # 79
    Part.ArcOfCircle(Part.Circle(App.Vector(10, 10, 0), App.Vector(0, 0, 1), 2.75), math.radians(63), math.radians(117)),  # 80
    Part.LineSegment(App.Vector(11.26, 12.44, 0), App.Vector(11.81, 12.99, 0)),  # 81
    Part.LineSegment(App.Vector(11.81, 12.99, 0), App.Vector(12.99, 11.81, 0)),  # 82
    Part.LineSegment(App.Vector(12.99, 11.81, 0), App.Vector(12.44, 11.26, 0)),  # 83
    Part.ArcOfCircle(Part.Circle(App.Vector(10, 10, 0), App.Vector(0, 0, 1), 2.75), math.radians(-27), math.radians(27)),  # 84
    Part.LineSegment(App.Vector(12.44, 8.74, 0), App.Vector(12.99, 8.19, 0)),  # 85
    Part.LineSegment(App.Vector(12.99, 8.19, 0), App.Vector(11.81, 7.01, 0)),  # 86
    Part.LineSegment(App.Vector(11.81, 7.01, 0), App.Vector(11.26, 7.56, 0)),  # 87
], False)
sketch3.addConstraint([
    Sketcher.Constraint("Coincident", 0, 2, 1, 1),
    Sketcher.Constraint("Coincident", 1, 2, 2, 1),
    Sketcher.Constraint("Coincident", 2, 2, 3, 1),
    Sketcher.Constraint("Coincident", 3, 2, 4, 1),
    Sketcher.Constraint("Coincident", 4, 2, 5, 1),
    Sketcher.Constraint("Coincident", 5, 2, 6, 1),
    Sketcher.Constraint("Coincident", 6, 2, 7, 1),
    Sketcher.Constraint("Tangent", 7, 2, 8, 1),
    Sketcher.Constraint("Tangent", 8, 2, 9, 1),
    Sketcher.Constraint("Coincident", 9, 2, 10, 1),
    Sketcher.Constraint("Coincident", 10, 2, 11, 1),
    Sketcher.Constraint("Coincident", 11, 2, 12, 1),
    Sketcher.Constraint("Coincident", 12, 2, 13, 1),
    Sketcher.Constraint("Coincident", 13, 2, 14, 1),
    Sketcher.Constraint("Coincident", 14, 2, 15, 1),
    Sketcher.Constraint("Coincident", 15, 2, 16, 1),
    Sketcher.Constraint("Coincident", 16, 2, 17, 2),
    Sketcher.Constraint("Coincident", 17, 1, 18, 1),
    Sketcher.Constraint("Coincident", 18, 2, 19, 1),
    Sketcher.Constraint("Coincident", 19, 2, 20, 1),
    Sketcher.Constraint("Coincident", 20, 2, 21, 1),
    Sketcher.Constraint("Coincident", 21, 2, 22, 1),
    Sketcher.Constraint("Coincident", 22, 2, 23, 1),
    Sketcher.Constraint("Coincident", 23, 2, 24, 1),
    Sketcher.Constraint("Coincident", 24, 2, 25, 1),
    Sketcher.Constraint("Tangent", 25, 2, 26, 1),
    Sketcher.Constraint("Tangent", 26, 2, 27, 1),
    Sketcher.Constraint("Coincident", 27, 2, 28, 1),
    Sketcher.Constraint("Coincident", 28, 2, 29, 1),
    Sketcher.Constraint("Coincident", 29, 2, 30, 1),
    Sketcher.Constraint("Coincident", 30, 2, 31, 1),
    Sketcher.Constraint("Coincident", 31, 2, 32, 1),
    Sketcher.Constraint("Coincident", 32, 2, 33, 1),
    Sketcher.Constraint("Coincident", 33, 2, 34, 1),
    Sketcher.Constraint("Coincident", 34, 2, 35, 2),
    Sketcher.Constraint("Coincident", 35, 1, 36, 1),
    Sketcher.Constraint("Coincident", 36, 2, 37, 1),
    Sketcher.Constraint("Coincident", 37, 2, 38, 1),
    Sketcher.Constraint("Coincident", 38, 2, 39, 1),
    Sketcher.Constraint("Coincident", 39, 2, 40, 1),
    Sketcher.Constraint("Coincident", 40, 2, 41, 1),
    Sketcher.Constraint("Coincident", 41, 2, 42, 1),
    Sketcher.Constraint("Coincident", 42, 2, 43, 1),
    Sketcher.Constraint("Tangent", 43, 2, 44, 1),
    Sketcher.Constraint("Tangent", 44, 2, 45, 1),
    Sketcher.Constraint("Coincident", 45, 2, 46, 1),
    Sketcher.Constraint("Coincident", 46, 2, 47, 1),
    Sketcher.Constraint("Coincident", 47, 2, 48, 1),
    Sketcher.Constraint("Coincident", 48, 2, 49, 1),
    Sketcher.Constraint("Coincident", 49, 2, 50, 1),
    Sketcher.Constraint("Coincident", 50, 2, 51, 1),
    Sketcher.Constraint("Coincident", 51, 2, 52, 1),
    Sketcher.Constraint("Coincident", 52, 2, 53, 2),
    Sketcher.Constraint("Coincident", 53, 1, 54, 1),
    Sketcher.Constraint("Coincident", 54, 2, 55, 1),
    Sketcher.Constraint("Coincident", 55, 2, 56, 1),
    Sketcher.Constraint("Coincident", 56, 2, 57, 1),
    Sketcher.Constraint("Coincident", 57, 2, 58, 1),
    Sketcher.Constraint("Coincident", 58, 2, 59, 1),
    Sketcher.Constraint("Coincident", 59, 2, 60, 1),
    Sketcher.Constraint("Coincident", 60, 2, 61, 1),
    Sketcher.Constraint("Tangent", 61, 2, 62, 1),
    Sketcher.Constraint("Tangent", 62, 2, 63, 1),
    Sketcher.Constraint("Coincident", 63, 2, 64, 1),
    Sketcher.Constraint("Coincident", 64, 2, 65, 1),
    Sketcher.Constraint("Coincident", 65, 2, 66, 1),
    Sketcher.Constraint("Coincident", 66, 2, 67, 1),
    Sketcher.Constraint("Coincident", 67, 2, 68, 1),
    Sketcher.Constraint("Coincident", 68, 2, 69, 1),
    Sketcher.Constraint("Coincident", 69, 2, 70, 1),
    Sketcher.Constraint("Coincident", 70, 2, 71, 2),
    Sketcher.Constraint("Coincident", 71, 1, 0, 1),
    Sketcher.Constraint("Coincident", 72, 1, 73, 1),
    Sketcher.Constraint("Coincident", 73, 2, 74, 1),
    Sketcher.Constraint("Coincident", 74, 2, 75, 1),
    Sketcher.Constraint("Coincident", 75, 2, 76, 2),
    Sketcher.Constraint("Coincident", 76, 1, 77, 1),
    Sketcher.Constraint("Coincident", 77, 2, 78, 1),
    Sketcher.Constraint("Coincident", 78, 2, 79, 1),
    Sketcher.Constraint("Coincident", 79, 2, 80, 2),
    Sketcher.Constraint("Coincident", 80, 1, 81, 1),
    Sketcher.Constraint("Coincident", 81, 2, 82, 1),
    Sketcher.Constraint("Coincident", 82, 2, 83, 1),
    Sketcher.Constraint("Coincident", 83, 2, 84, 2),
    Sketcher.Constraint("Coincident", 84, 1, 85, 1),
    Sketcher.Constraint("Coincident", 85, 2, 86, 1),
    Sketcher.Constraint("Coincident", 86, 2, 87, 1),
    Sketcher.Constraint("Coincident", 87, 2, 72, 2),
    Sketcher.Constraint("Horizontal", 0),
    Sketcher.Constraint("Vertical", 2),
    Sketcher.Constraint("Horizontal", 3),
    Sketcher.Constraint("Vertical", 4),
    Sketcher.Constraint("Horizontal", 5),
    Sketcher.Constraint("Vertical", 6),
    Sketcher.Constraint("Horizontal", 7),
    Sketcher.Constraint("Vertical", 9),
    Sketcher.Constraint("Horizontal", 10),
    Sketcher.Constraint("Vertical", 11),
    Sketcher.Constraint("Horizontal", 12),
    Sketcher.Constraint("Vertical", 13),
    Sketcher.Constraint("Horizontal", 14),
    Sketcher.Constraint("Vertical", 16),
    Sketcher.Constraint("Vertical", 18),
    Sketcher.Constraint("Horizontal", 20),
    Sketcher.Constraint("Vertical", 21),
    Sketcher.Constraint("Horizontal", 22),
    Sketcher.Constraint("Vertical", 23),
    Sketcher.Constraint("Horizontal", 24),
    Sketcher.Constraint("Vertical", 25),
    Sketcher.Constraint("Horizontal", 27),
    Sketcher.Constraint("Vertical", 28),
    Sketcher.Constraint("Horizontal", 29),
    Sketcher.Constraint("Vertical", 30),
    Sketcher.Constraint("Horizontal", 31),
    Sketcher.Constraint("Vertical", 32),
    Sketcher.Constraint("Horizontal", 34),
    Sketcher.Constraint("Horizontal", 36),
    Sketcher.Constraint("Vertical", 38),
    Sketcher.Constraint("Horizontal", 39),
    Sketcher.Constraint("Vertical", 40),
    Sketcher.Constraint("Horizontal", 41),
    Sketcher.Constraint("Vertical", 42),
    Sketcher.Constraint("Horizontal", 43),
    Sketcher.Constraint("Vertical", 45),
    Sketcher.Constraint("Horizontal", 46),
    Sketcher.Constraint("Vertical", 47),
    Sketcher.Constraint("Horizontal", 48),
    Sketcher.Constraint("Vertical", 49),
    Sketcher.Constraint("Horizontal", 50),
    Sketcher.Constraint("Vertical", 52),
    Sketcher.Constraint("Vertical", 54),
    Sketcher.Constraint("Horizontal", 56),
    Sketcher.Constraint("Vertical", 57),
    Sketcher.Constraint("Horizontal", 58),
    Sketcher.Constraint("Vertical", 59),
    Sketcher.Constraint("Horizontal", 60),
    Sketcher.Constraint("Vertical", 61),
    Sketcher.Constraint("Horizontal", 63),
    Sketcher.Constraint("Vertical", 64),
    Sketcher.Constraint("Horizontal", 65),
    Sketcher.Constraint("Vertical", 66),
    Sketcher.Constraint("Horizontal", 67),
    Sketcher.Constraint("Vertical", 68),
    Sketcher.Constraint("Horizontal", 70),
    Sketcher.Constraint("Coincident", 76, 3, 72, 3),
    Sketcher.Constraint("Coincident", 80, 3, 72, 3),
    Sketcher.Constraint("Coincident", 84, 3, 72, 3),
    Sketcher.Constraint("Equal", 8, 26),
    Sketcher.Constraint("Equal", 17, 35),
    Sketcher.Constraint("Equal", 26, 44),
    Sketcher.Constraint("Equal", 35, 53),
    Sketcher.Constraint("Equal", 44, 62),
    Sketcher.Constraint("Equal", 53, 71),
    Sketcher.Constraint("Equal", 72, 76),
    Sketcher.Constraint("Equal", 76, 80),
    Sketcher.Constraint("Equal", 80, 84),
    Sketcher.Constraint("PointOnObject", 6, 2, -1),
    Sketcher.Constraint("PointOnObject", 44, 2, -2),
    Sketcher.Constraint("PointOnObject", 60, 2, -2),
    Sketcher.Constraint("PointOnObject", 62, 2, -1),
    Sketcher.Constraint("Perpendicular", 1, 19),
    Sketcher.Constraint("Perpendicular", 15, 33),
    Sketcher.Constraint("Perpendicular", 19, 37),
    Sketcher.Constraint("Perpendicular", 33, 51),
    Sketcher.Constraint("Perpendicular", 37, 55),
    Sketcher.Constraint("Perpendicular", 51, 69),
    Sketcher.Constraint("Parallel", 55, 73),
    Sketcher.Constraint("Perpendicular", 73, 74),
    Sketcher.Constraint("Perpendicular", 74, 75),
    Sketcher.Constraint("Perpendicular", 75, 77),
    Sketcher.Constraint("Perpendicular", 77, 78),
    Sketcher.Constraint("Perpendicular", 78, 79),
    Sketcher.Constraint("Perpendicular", 79, 81),
    Sketcher.Constraint("Perpendicular", 81, 82),
    Sketcher.Constraint("Perpendicular", 82, 83),
    Sketcher.Constraint("Perpendicular", 83, 85),
    Sketcher.Constraint("Perpendicular", 85, 86),
    Sketcher.Constraint("Perpendicular", 86, 87),
    Sketcher.Constraint("Horizontal", 26, 3, 44, 3),
    Sketcher.Constraint("Horizontal", 17, 3, 53, 3),
    Sketcher.Constraint("Horizontal", 53, 3, 72, 3),
    Sketcher.Constraint("Horizontal", 10, 2, 15, 2),
    Sketcher.Constraint("Horizontal", 18, 2, 23, 2),
    Sketcher.Constraint("Horizontal", 34, 2, 35, 1),
    Sketcher.Constraint("Horizontal", 22, 2, 47, 2),
    Sketcher.Constraint("Horizontal", 46, 2, 51, 2),
    Sketcher.Constraint("Horizontal", 17, 1, 52, 2),
    Sketcher.Constraint("Horizontal", 16, 2, 53, 1),
    Sketcher.Constraint("Horizontal", 12, 2, 57, 2),
    Sketcher.Constraint("Horizontal", 54, 2, 59, 2),
    Sketcher.Constraint("Horizontal", 0, 2, 69, 2),
    Sketcher.Constraint("Horizontal", 79, 2, 80, 1),
    Sketcher.Constraint("Horizontal", 78, 2, 81, 2),
    Sketcher.Constraint("Horizontal", 77, 2, 82, 2),
    Sketcher.Constraint("Horizontal", 76, 1, 83, 2),
    Sketcher.Constraint("Horizontal", 75, 2, 84, 1),
    Sketcher.Constraint("Horizontal", 74, 2, 85, 2),
    Sketcher.Constraint("Horizontal", 73, 2, 86, 2),
    Sketcher.Constraint("Vertical", 8, 3, 26, 3),
    Sketcher.Constraint("Vertical", 35, 3, 71, 3),
    Sketcher.Constraint("Vertical", 71, 3, 72, 3),
    Sketcher.Constraint("Vertical", 0, 2, 5, 2),
    Sketcher.Constraint("Vertical", 16, 2, 17, 1),
    Sketcher.Constraint("Vertical", 4, 2, 29, 2),
    Sketcher.Constraint("Vertical", 28, 2, 33, 2),
    Sketcher.Constraint("Vertical", 36, 2, 41, 2),
    Sketcher.Constraint("Vertical", 40, 2, 65, 2),
    Sketcher.Constraint("Vertical", 64, 2, 69, 2),
    Sketcher.Constraint("Vertical", 35, 1, 70, 2),
    Sketcher.Constraint("Vertical", 75, 2, 76, 1),
    Sketcher.Constraint("Vertical", 74, 2, 77, 2),
    Sketcher.Constraint("Vertical", 73, 2, 78, 2),
    Sketcher.Constraint("Equal", 5, 10),
    Sketcher.Constraint("Equal", 0, 36),
    Sketcher.Constraint("Equal", 3, 39),
    Sketcher.Constraint("Equal", 10, 41),
    Sketcher.Constraint("Equal", 7, 43),
    Sketcher.Constraint("Equal", 41, 46),
    Sketcher.Constraint("Equal", 12, 48),
    Sketcher.Constraint("Equal", 14, 50),
    Sketcher.Constraint("Equal", 20, 56),
    Sketcher.Constraint("Equal", 22, 58),
    Sketcher.Constraint("Equal", 24, 60),
    Sketcher.Constraint("Equal", 27, 63),
    Sketcher.Constraint("Equal", 31, 67),
    Sketcher.Constraint("Equal", 56, 2),
    Sketcher.Constraint("Equal", 58, 4),
    Sketcher.Constraint("Equal", 60, 6),
    Sketcher.Constraint("Equal", 63, 9),
    Sketcher.Constraint("Equal", 65, 11),
    Sketcher.Constraint("Equal", 67, 13),
    Sketcher.Constraint("Equal", 70, 16),
    Sketcher.Constraint("Equal", 36, 18),
    Sketcher.Constraint("Equal", 39, 21),
    Sketcher.Constraint("Equal", 46, 23),
    Sketcher.Constraint("Equal", 43, 25),
    Sketcher.Constraint("Equal", 23, 28),
    Sketcher.Constraint("Equal", 48, 30),
    Sketcher.Constraint("Equal", 50, 32),
    Sketcher.Constraint("Equal", 2, 38),
    Sketcher.Constraint("Equal", 4, 40),
    Sketcher.Constraint("Equal", 9, 45),
    Sketcher.Constraint("Equal", 13, 49),
    Sketcher.Constraint("Equal", 18, 54),
    Sketcher.Constraint("Equal", 59, 64),
    Sketcher.Constraint("Equal", 30, 66),
    Sketcher.Constraint("Equal", 73, 75),
    Sketcher.Constraint("DistanceX", 22, 1, 22, 2, 1.0),
    Sketcher.Constraint("DistanceX", 31, 1, 31, 2, 3.0),
    Sketcher.Constraint("Radius", 72, 2.75),
    Sketcher.Constraint("DistanceX", 20, 1, 20, 2, 1.5),
    Sketcher.Constraint("DistanceX", 24, 1, 24, 2, 0.5),
    Sketcher.Constraint("DistanceY", -1, 1, 17, 3, 10.0),
    Sketcher.Constraint("DistanceX", -1, 1, 35, 3, 10.0),
    Sketcher.Constraint("DistanceX", -1, 1, 3, 2, 13.0),
    Sketcher.Constraint("Radius", 8, 1.5043),
    Sketcher.Constraint("Radius", 17, 0.8732),
    Sketcher.Constraint("DistanceX", 3, 2, 3, 1, 2.909),
    Sketcher.Constraint("DistanceX", 34, 2, 34, 1, 2.503),
    Sketcher.Constraint("DistanceX", 0, 1, 0, 2, 2.6243),
    Sketcher.Constraint("DistanceX", 5, 1, 5, 2, 0.4545),
    Sketcher.Constraint("DistanceX", 12, 2, 12, 1, 1.1364),
    Sketcher.Constraint("DistanceX", 14, 2, 14, 1, 1.3636),
    Sketcher.Constraint("Distance", 73, 0.7761),
    Sketcher.Constraint("Distance", 74, 1.6715),
])
pocket1 = doc.addObject("PartDesign::Pocket", "Pocket")
body.addObject(pocket1)
pocket1.Profile = sketch3
pocket1.Length = 15.4

doc.recompute()
